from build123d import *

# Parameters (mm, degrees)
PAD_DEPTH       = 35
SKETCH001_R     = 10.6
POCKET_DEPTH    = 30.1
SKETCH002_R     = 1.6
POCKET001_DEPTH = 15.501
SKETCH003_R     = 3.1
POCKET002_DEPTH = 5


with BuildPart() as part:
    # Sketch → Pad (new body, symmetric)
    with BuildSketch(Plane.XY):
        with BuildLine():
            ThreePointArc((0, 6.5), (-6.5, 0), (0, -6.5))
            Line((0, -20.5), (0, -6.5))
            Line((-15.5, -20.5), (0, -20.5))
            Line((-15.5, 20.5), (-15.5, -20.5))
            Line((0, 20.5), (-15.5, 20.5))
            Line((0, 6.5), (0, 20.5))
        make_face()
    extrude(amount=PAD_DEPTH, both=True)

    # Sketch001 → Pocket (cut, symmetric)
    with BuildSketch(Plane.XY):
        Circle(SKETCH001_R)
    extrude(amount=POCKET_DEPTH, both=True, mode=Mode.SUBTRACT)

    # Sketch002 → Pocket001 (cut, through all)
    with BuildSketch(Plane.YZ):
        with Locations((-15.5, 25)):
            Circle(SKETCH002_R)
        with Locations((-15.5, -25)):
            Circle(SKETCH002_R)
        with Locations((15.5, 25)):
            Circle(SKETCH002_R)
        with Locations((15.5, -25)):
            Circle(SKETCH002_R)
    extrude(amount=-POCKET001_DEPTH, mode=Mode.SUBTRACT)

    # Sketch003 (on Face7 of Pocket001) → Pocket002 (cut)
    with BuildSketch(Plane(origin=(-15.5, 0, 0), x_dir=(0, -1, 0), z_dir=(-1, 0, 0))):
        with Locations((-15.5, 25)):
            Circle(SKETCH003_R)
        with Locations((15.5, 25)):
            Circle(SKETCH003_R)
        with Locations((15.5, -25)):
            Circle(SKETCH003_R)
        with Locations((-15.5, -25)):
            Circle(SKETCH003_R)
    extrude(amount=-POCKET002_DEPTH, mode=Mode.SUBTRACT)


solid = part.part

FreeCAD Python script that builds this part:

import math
import FreeCAD as App
import Part
import Sketcher

doc = App.newDocument("Part")
body = doc.addObject("PartDesign::Body", "Body")

# Sketch on XY plane
sketch1 = body.newObject("Sketcher::SketchObject", "Sketch")
sketch1.AttachmentSupport = (doc.getObject("XY_Plane"), [""])
sketch1.MapMode = "FlatFace"
sketch1.addGeometry([
    Part.ArcOfCircle(Part.Circle(App.Vector(0, 0, 0), App.Vector(0, 0, 1), 6.5), math.radians(90), math.radians(270)),  # 0
    Part.LineSegment(App.Vector(0, 6.5, 0), App.Vector(0, 20.5, 0)),  # 1
    Part.LineSegment(App.Vector(0, 20.5, 0), App.Vector(-15.5, 20.5, 0)),  # 2
    Part.LineSegment(App.Vector(-15.5, 20.5, 0), App.Vector(-15.5, -20.5, 0)),  # 3
    Part.LineSegment(App.Vector(-15.5, -20.5, 0), App.Vector(0, -20.5, 0)),  # 4
    Part.LineSegment(App.Vector(0, -20.5, 0), App.Vector(0, -6.5, 0)),  # 5
], False)
sketch1.addConstraint([
    Sketcher.Constraint("Coincident", 0, 1, 1, 1),
    Sketcher.Constraint("Coincident", 1, 2, 2, 1),
    Sketcher.Constraint("Coincident", 2, 2, 3, 1),
    Sketcher.Constraint("Coincident", 3, 2, 4, 1),
    Sketcher.Constraint("Coincident", 4, 2, 5, 1),
    Sketcher.Constraint("Coincident", 5, 2, 0, 2),
    Sketcher.Constraint("Vertical", 1),
    Sketcher.Constraint("Horizontal", 2),
    Sketcher.Constraint("Vertical", 3),
    Sketcher.Constraint("Horizontal", 4),
    Sketcher.Constraint("Vertical", 5),
    Sketcher.Constraint("Coincident", 0, 3, -1, 1),
    Sketcher.Constraint("Symmetric", 1, 2, 4, 2, -1, 1),
    Sketcher.Constraint("PointOnObject", 0, 1, -2),
    Sketcher.Constraint("Radius", 0, 6.5),
    Sketcher.Constraint("DistanceY", 1, 1, 1, 2, 14.0),
    Sketcher.Constraint("DistanceX", 2, 2, 2, 1, 15.5),
])
pad1 = body.newObject("PartDesign::Pad", "Pad")
pad1.Profile = sketch1
pad1.Length = 70
pad1.Midplane = True

# Sketch on XY plane
sketch2 = body.newObject("Sketcher::SketchObject", "Sketch001")
sketch2.AttachmentSupport = (doc.getObject("XY_Plane"), [""])
sketch2.MapMode = "FlatFace"
sketch2.addGeometry(Part.Circle(App.Vector(0, 0, 0), App.Vector(0, 0, 1), 10.6), False)
sketch2.addConstraint([
    Sketcher.Constraint("Coincident", 0, 3, -1, 1),
    Sketcher.Constraint("Diameter", 0, 21.2),
])
pocket1 = body.newObject("PartDesign::Pocket", "Pocket")
pocket1.Profile = sketch2
pocket1.Length = 60.2
pocket1.Midplane = True

# Sketch on YZ plane
sketch3 = body.newObject("Sketcher::SketchObject", "Sketch002")
sketch3.AttachmentSupport = (doc.getObject("YZ_Plane"), [""])
sketch3.MapMode = "FlatFace"
sketch3.addGeometry([
    Part.Circle(App.Vector(-15.5, 25, 0), App.Vector(0, 0, 1), 1.6),
    Part.Circle(App.Vector(-15.5, -25, 0), App.Vector(0, 0, 1), 1.6),
    Part.Circle(App.Vector(15.5, 25, 0), App.Vector(0, 0, 1), 1.6),
    Part.Circle(App.Vector(15.5, -25, 0), App.Vector(0, 0, 1), 1.6),
], False)
sketch3.addConstraint([
    Sketcher.Constraint("Equal", 0, 1),
    Sketcher.Constraint("Equal", 1, 2),
    Sketcher.Constraint("Equal", 2, 3),
    Sketcher.Constraint("Symmetric", 1, 3, 2, 3, -1, 1),
    Sketcher.Constraint("Symmetric", 0, 3, 3, 3, -1, 1),
    Sketcher.Constraint("Symmetric", 0, 3, 2, 3, -2),
    Sketcher.Constraint("Diameter", 0, 3.2),
    Sketcher.Constraint("DistanceY", -1, 1, 0, 3, 25.0),
    Sketcher.Constraint("DistanceX", 0, 3, 2, 3, 31.0),
])
pocket2 = body.newObject("PartDesign::Pocket", "Pocket001")
pocket2.Profile = sketch3
pocket2.Type = "ThroughAll"

# Sketch on YZ plane
sketch4 = body.newObject("Sketcher::SketchObject", "Sketch003")
sketch4.AttachmentSupport = (doc.getObject("YZ_Plane"), [""])
sketch4.MapMode = "FlatFace"
sketch4.AttachmentOffset = App.Placement(App.Vector(0, 0, -15.5), App.Rotation())
sketch4.addGeometry([
    Part.Circle(App.Vector(15.5, 25, 0), App.Vector(0, 0, 1), 3.1),
    Part.Circle(App.Vector(-15.5, 25, 0), App.Vector(0, 0, 1), 3.1),
    Part.Circle(App.Vector(-15.5, -25, 0), App.Vector(0, 0, 1), 3.1),
    Part.Circle(App.Vector(15.5, -25, 0), App.Vector(0, 0, 1), 3.1),
], False)
sketch4.addConstraint([
    Sketcher.Constraint("Equal", 0, 1),
    Sketcher.Constraint("Equal", 1, 2),
    Sketcher.Constraint("Equal", 2, 3),
    Sketcher.Constraint("Symmetric", 0, 3, 2, 3, -1, 1),
    Sketcher.Constraint("Symmetric", 1, 3, 3, 3, -1, 1),
    Sketcher.Constraint("Symmetric", 0, 3, 1, 3, -2),
    Sketcher.Constraint("Diameter", 0, 6.2),
    Sketcher.Constraint("DistanceY", -1, 1, 0, 3, 25.0),
    Sketcher.Constraint("DistanceX", 1, 3, 0, 3, 31.0),
])
pocket3 = body.newObject("PartDesign::Pocket", "Pocket002")
pocket3.Profile = sketch4
pocket3.Length = 5
pocket3.Reversed = True

doc.recompute()
